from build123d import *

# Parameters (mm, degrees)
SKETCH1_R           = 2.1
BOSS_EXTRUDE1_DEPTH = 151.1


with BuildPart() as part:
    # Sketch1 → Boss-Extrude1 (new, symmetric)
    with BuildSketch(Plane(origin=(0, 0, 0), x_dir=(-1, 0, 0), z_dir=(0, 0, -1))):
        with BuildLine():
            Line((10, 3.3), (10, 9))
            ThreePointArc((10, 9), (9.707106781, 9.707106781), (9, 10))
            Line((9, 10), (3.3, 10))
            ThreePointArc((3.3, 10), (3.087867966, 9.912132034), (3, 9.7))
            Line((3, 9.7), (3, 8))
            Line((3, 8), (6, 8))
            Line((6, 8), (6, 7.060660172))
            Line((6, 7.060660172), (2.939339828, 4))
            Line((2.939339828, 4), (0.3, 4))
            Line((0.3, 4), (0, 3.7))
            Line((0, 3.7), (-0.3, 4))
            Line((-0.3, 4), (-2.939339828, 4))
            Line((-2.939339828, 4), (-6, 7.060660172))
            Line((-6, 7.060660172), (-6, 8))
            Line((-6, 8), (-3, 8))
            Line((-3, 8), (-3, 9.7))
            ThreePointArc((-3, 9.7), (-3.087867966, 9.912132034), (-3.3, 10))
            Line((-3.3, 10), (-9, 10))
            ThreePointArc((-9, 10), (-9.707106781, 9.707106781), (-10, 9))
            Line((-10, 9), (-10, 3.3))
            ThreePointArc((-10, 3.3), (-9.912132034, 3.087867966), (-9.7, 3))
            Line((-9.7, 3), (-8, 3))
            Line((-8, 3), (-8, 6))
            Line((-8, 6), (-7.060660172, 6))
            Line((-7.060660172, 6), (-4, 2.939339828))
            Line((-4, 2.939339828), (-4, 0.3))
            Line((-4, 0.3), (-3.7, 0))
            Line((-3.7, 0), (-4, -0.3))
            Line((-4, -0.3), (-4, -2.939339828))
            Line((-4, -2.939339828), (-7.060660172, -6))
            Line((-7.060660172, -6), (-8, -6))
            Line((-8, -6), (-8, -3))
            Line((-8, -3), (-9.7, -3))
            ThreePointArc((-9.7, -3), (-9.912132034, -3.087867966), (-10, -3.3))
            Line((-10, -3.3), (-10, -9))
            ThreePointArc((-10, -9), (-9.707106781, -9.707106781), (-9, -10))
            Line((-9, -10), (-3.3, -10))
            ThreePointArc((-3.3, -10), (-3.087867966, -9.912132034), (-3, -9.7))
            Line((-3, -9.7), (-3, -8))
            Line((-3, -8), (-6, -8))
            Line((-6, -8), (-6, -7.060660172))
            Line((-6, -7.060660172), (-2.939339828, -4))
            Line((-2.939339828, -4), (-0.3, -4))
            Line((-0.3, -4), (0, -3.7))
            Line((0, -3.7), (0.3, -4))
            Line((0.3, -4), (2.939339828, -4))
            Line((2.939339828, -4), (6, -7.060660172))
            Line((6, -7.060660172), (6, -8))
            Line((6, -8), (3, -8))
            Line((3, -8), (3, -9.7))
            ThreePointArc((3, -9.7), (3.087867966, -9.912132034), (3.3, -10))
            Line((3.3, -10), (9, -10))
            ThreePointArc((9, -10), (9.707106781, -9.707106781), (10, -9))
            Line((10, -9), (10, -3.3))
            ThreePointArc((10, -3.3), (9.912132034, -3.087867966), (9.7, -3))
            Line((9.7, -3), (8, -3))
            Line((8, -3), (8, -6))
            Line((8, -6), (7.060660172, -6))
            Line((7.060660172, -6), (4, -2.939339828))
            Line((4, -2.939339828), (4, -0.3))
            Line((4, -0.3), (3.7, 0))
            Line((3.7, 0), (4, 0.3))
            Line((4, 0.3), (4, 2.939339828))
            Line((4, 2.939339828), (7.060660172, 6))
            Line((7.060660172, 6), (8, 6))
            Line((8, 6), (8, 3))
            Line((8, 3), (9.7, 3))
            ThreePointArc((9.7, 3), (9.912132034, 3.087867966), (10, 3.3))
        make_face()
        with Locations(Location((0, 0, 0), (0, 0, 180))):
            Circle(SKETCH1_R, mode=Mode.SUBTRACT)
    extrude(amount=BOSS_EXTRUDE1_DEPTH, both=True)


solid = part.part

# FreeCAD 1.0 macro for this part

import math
import FreeCAD as App
import Part
import Sketcher
from FreeCAD import Vector
Q = App.Units.Quantity

doc = App.newDocument("Part")
body = doc.addObject("PartDesign::Body", "Body")

# Sketch on XY plane
sketch1 = body.newObject("Sketcher::SketchObject", "Sketch")
sketch1.AttachmentSupport = (doc.getObject("XY_Plane"), [""])
sketch1.MapMode = "FlatFace"
sketch1.addGeometry(Part.LineSegment(Vector(-10, 3.3, 0), Vector(-10, 9, 0)), False)
sketch1.addGeometry(Part.ArcOfCircle(Part.Circle(Vector(-9, 9, 0), Vector(0, 0, 1), 1), math.radians(90), math.radians(180)), False)
sketch1.addGeometry(Part.LineSegment(Vector(-9, 10, 0), Vector(-3.3, 10, 0)), False)
sketch1.addGeometry(Part.ArcOfCircle(Part.Circle(Vector(-3.3, 9.7, 0), Vector(0, 0, 1), 0.3), math.radians(0), math.radians(90)), False)
sketch1.addGeometry(Part.LineSegment(Vector(-3, 9.7, 0), Vector(-3, 8, 0)), False)
sketch1.addGeometry(Part.LineSegment(Vector(-3, 8, 0), Vector(-6, 8, 0)), False)
sketch1.addGeometry(Part.LineSegment(Vector(-6, 8, 0), Vector(-6, 7.06, 0)), False)
sketch1.addGeometry(Part.LineSegment(Vector(-6, 7.06, 0), Vector(-2.94, 4, 0)), False)
sketch1.addGeometry(Part.LineSegment(Vector(-2.94, 4, 0), Vector(-0.3, 4, 0)), False)
sketch1.addGeometry(Part.LineSegment(Vector(-0.3, 4, 0), Vector(0, 3.7, 0)), False)
sketch1.addGeometry(Part.LineSegment(Vector(0, 3.7, 0), Vector(0.3, 4, 0)), False)
sketch1.addGeometry(Part.LineSegment(Vector(0.3, 4, 0), Vector(2.94, 4, 0)), False)
sketch1.addGeometry(Part.LineSegment(Vector(2.94, 4, 0), Vector(6, 7.06, 0)), False)
sketch1.addGeometry(Part.LineSegment(Vector(6, 7.06, 0), Vector(6, 8, 0)), False)
sketch1.addGeometry(Part.LineSegment(Vector(6, 8, 0), Vector(3, 8, 0)), False)
sketch1.addGeometry(Part.LineSegment(Vector(3, 8, 0), Vector(3, 9.7, 0)), False)
sketch1.addGeometry(Part.ArcOfCircle(Part.Circle(Vector(3.3, 9.7, 0), Vector(0, 0, 1), 0.3), math.radians(90), math.radians(180)), False)
sketch1.addGeometry(Part.LineSegment(Vector(3.3, 10, 0), Vector(9, 10, 0)), False)
sketch1.addGeometry(Part.ArcOfCircle(Part.Circle(Vector(9, 9, 0), Vector(0, 0, 1), 1), math.radians(0), math.radians(90)), False)
sketch1.addGeometry(Part.LineSegment(Vector(10, 9, 0), Vector(10, 3.3, 0)), False)
sketch1.addGeometry(Part.ArcOfCircle(Part.Circle(Vector(9.7, 3.3, 0), Vector(0, 0, 1), 0.3), math.radians(-90), math.radians(0)), False)
sketch1.addGeometry(Part.LineSegment(Vector(9.7, 3, 0), Vector(8, 3, 0)), False)
sketch1.addGeometry(Part.LineSegment(Vector(8, 3, 0), Vector(8, 6, 0)), False)
sketch1.addGeometry(Part.LineSegment(Vector(8, 6, 0), Vector(7.06, 6, 0)), False)
sketch1.addGeometry(Part.LineSegment(Vector(7.06, 6, 0), Vector(4, 2.94, 0)), False)
sketch1.addGeometry(Part.LineSegment(Vector(4, 2.94, 0), Vector(4, 0.3, 0)), False)
sketch1.addGeometry(Part.LineSegment(Vector(4, 0.3, 0), Vector(3.7, 0, 0)), False)
sketch1.addGeometry(Part.LineSegment(Vector(3.7, 0, 0), Vector(4, -0.3, 0)), False)
sketch1.addGeometry(Part.LineSegment(Vector(4, -0.3, 0), Vector(4, -2.94, 0)), False)
sketch1.addGeometry(Part.LineSegment(Vector(4, -2.94, 0), Vector(7.06, -6, 0)), False)
sketch1.addGeometry(Part.LineSegment(Vector(7.06, -6, 0), Vector(8, -6, 0)), False)
sketch1.addGeometry(Part.LineSegment(Vector(8, -6, 0), Vector(8, -3, 0)), False)
sketch1.addGeometry(Part.LineSegment(Vector(8, -3, 0), Vector(9.7, -3, 0)), False)
sketch1.addGeometry(Part.ArcOfCircle(Part.Circle(Vector(9.7, -3.3, 0), Vector(0, 0, 1), 0.3), math.radians(0), math.radians(90)), False)
sketch1.addGeometry(Part.LineSegment(Vector(10, -3.3, 0), Vector(10, -9, 0)), False)
sketch1.addGeometry(Part.ArcOfCircle(Part.Circle(Vector(9, -9, 0), Vector(0, 0, 1), 1), math.radians(-90), math.radians(0)), False)
sketch1.addGeometry(Part.LineSegment(Vector(9, -10, 0), Vector(3.3, -10, 0)), False)
sketch1.addGeometry(Part.ArcOfCircle(Part.Circle(Vector(3.3, -9.7, 0), Vector(0, 0, 1), 0.3), math.radians(-180), math.radians(-90)), False)
sketch1.addGeometry(Part.LineSegment(Vector(3, -9.7, 0), Vector(3, -8, 0)), False)
sketch1.addGeometry(Part.LineSegment(Vector(3, -8, 0), Vector(6, -8, 0)), False)
sketch1.addGeometry(Part.LineSegment(Vector(6, -8, 0), Vector(6, -7.06, 0)), False)
sketch1.addGeometry(Part.LineSegment(Vector(6, -7.06, 0), Vector(2.94, -4, 0)), False)
sketch1.addGeometry(Part.LineSegment(Vector(2.94, -4, 0), Vector(0.3, -4, 0)), False)
sketch1.addGeometry(Part.LineSegment(Vector(0.3, -4, 0), Vector(0, -3.7, 0)), False)
sketch1.addGeometry(Part.LineSegment(Vector(0, -3.7, 0), Vector(-0.3, -4, 0)), False)
sketch1.addGeometry(Part.LineSegment(Vector(-0.3, -4, 0), Vector(-2.94, -4, 0)), False)
sketch1.addGeometry(Part.LineSegment(Vector(-2.94, -4, 0), Vector(-6, -7.06, 0)), False)
sketch1.addGeometry(Part.LineSegment(Vector(-6, -7.06, 0), Vector(-6, -8, 0)), False)
sketch1.addGeometry(Part.LineSegment(Vector(-6, -8, 0), Vector(-3, -8, 0)), False)
sketch1.addGeometry(Part.LineSegment(Vector(-3, -8, 0), Vector(-3, -9.7, 0)), False)
sketch1.addGeometry(Part.ArcOfCircle(Part.Circle(Vector(-3.3, -9.7, 0), Vector(0, 0, 1), 0.3), math.radians(-90), math.radians(0)), False)
sketch1.addGeometry(Part.LineSegment(Vector(-3.3, -10, 0), Vector(-9, -10, 0)), False)
sketch1.addGeometry(Part.ArcOfCircle(Part.Circle(Vector(-9, -9, 0), Vector(0, 0, 1), 1), math.radians(-180), math.radians(-90)), False)
sketch1.addGeometry(Part.LineSegment(Vector(-10, -9, 0), Vector(-10, -3.3, 0)), False)
sketch1.addGeometry(Part.ArcOfCircle(Part.Circle(Vector(-9.7, -3.3, 0), Vector(0, 0, 1), 0.3), math.radians(90), math.radians(180)), False)
sketch1.addGeometry(Part.LineSegment(Vector(-9.7, -3, 0), Vector(-8, -3, 0)), False)
sketch1.addGeometry(Part.LineSegment(Vector(-8, -3, 0), Vector(-8, -6, 0)), False)
sketch1.addGeometry(Part.LineSegment(Vector(-8, -6, 0), Vector(-7.06, -6, 0)), False)
sketch1.addGeometry(Part.LineSegment(Vector(-7.06, -6, 0), Vector(-4, -2.94, 0)), False)
sketch1.addGeometry(Part.LineSegment(Vector(-4, -2.94, 0), Vector(-4, -0.3, 0)), False)
sketch1.addGeometry(Part.LineSegment(Vector(-4, -0.3, 0), Vector(-3.7, 0, 0)), False)
sketch1.addGeometry(Part.LineSegment(Vector(-3.7, 0, 0), Vector(-4, 0.3, 0)), False)
sketch1.addGeometry(Part.LineSegment(Vector(-4, 0.3, 0), Vector(-4, 2.94, 0)), False)
sketch1.addGeometry(Part.LineSegment(Vector(-4, 2.94, 0), Vector(-7.06, 6, 0)), False)
sketch1.addGeometry(Part.LineSegment(Vector(-7.06, 6, 0), Vector(-8, 6, 0)), False)
sketch1.addGeometry(Part.LineSegment(Vector(-8, 6, 0), Vector(-8, 3, 0)), False)
sketch1.addGeometry(Part.LineSegment(Vector(-8, 3, 0), Vector(-9.7, 3, 0)), False)
sketch1.addGeometry(Part.ArcOfCircle(Part.Circle(Vector(-9.7, 3.3, 0), Vector(0, 0, 1), 0.3), math.radians(-180), math.radians(-90)), False)
sketch1.addGeometry(Part.Circle(Vector(0, 0, 0), Vector(0, 0, 1), 2.1), False)
sketch1.addConstraint(Sketcher.Constraint("Tangent", 0, 2, 1, 2))
sketch1.addConstraint(Sketcher.Constraint("Tangent", 1, 1, 2, 1))
sketch1.addConstraint(Sketcher.Constraint("Tangent", 2, 2, 3, 2))
sketch1.addConstraint(Sketcher.Constraint("Tangent", 3, 1, 4, 1))
sketch1.addConstraint(Sketcher.Constraint("Coincident", 4, 2, 5, 1))
sketch1.addConstraint(Sketcher.Constraint("Coincident", 5, 2, 6, 1))
sketch1.addConstraint(Sketcher.Constraint("Coincident", 6, 2, 7, 1))
sketch1.addConstraint(Sketcher.Constraint("Coincident", 7, 2, 8, 1))
sketch1.addConstraint(Sketcher.Constraint("Coincident", 8, 2, 9, 1))
sketch1.addConstraint(Sketcher.Constraint("Coincident", 9, 2, 10, 1))
sketch1.addConstraint(Sketcher.Constraint("Coincident", 10, 2, 11, 1))
sketch1.addConstraint(Sketcher.Constraint("Coincident", 11, 2, 12, 1))
sketch1.addConstraint(Sketcher.Constraint("Coincident", 12, 2, 13, 1))
sketch1.addConstraint(Sketcher.Constraint("Coincident", 13, 2, 14, 1))
sketch1.addConstraint(Sketcher.Constraint("Coincident", 14, 2, 15, 1))
sketch1.addConstraint(Sketcher.Constraint("Tangent", 15, 2, 16, 2))
sketch1.addConstraint(Sketcher.Constraint("Tangent", 16, 1, 17, 1))
sketch1.addConstraint(Sketcher.Constraint("Tangent", 17, 2, 18, 2))
sketch1.addConstraint(Sketcher.Constraint("Tangent", 18, 1, 19, 1))
sketch1.addConstraint(Sketcher.Constraint("Tangent", 19, 2, 20, 2))
sketch1.addConstraint(Sketcher.Constraint("Tangent", 20, 1, 21, 1))
sketch1.addConstraint(Sketcher.Constraint("Coincident", 21, 2, 22, 1))
sketch1.addConstraint(Sketcher.Constraint("Coincident", 22, 2, 23, 1))
sketch1.addConstraint(Sketcher.Constraint("Coincident", 23, 2, 24, 1))
sketch1.addConstraint(Sketcher.Constraint("Coincident", 24, 2, 25, 1))
sketch1.addConstraint(Sketcher.Constraint("Coincident", 25, 2, 26, 1))
sketch1.addConstraint(Sketcher.Constraint("Coincident", 26, 2, 27, 1))
sketch1.addConstraint(Sketcher.Constraint("Coincident", 27, 2, 28, 1))
sketch1.addConstraint(Sketcher.Constraint("Coincident", 28, 2, 29, 1))
sketch1.addConstraint(Sketcher.Constraint("Coincident", 29, 2, 30, 1))
sketch1.addConstraint(Sketcher.Constraint("Coincident", 30, 2, 31, 1))
sketch1.addConstraint(Sketcher.Constraint("Coincident", 31, 2, 32, 1))
sketch1.addConstraint(Sketcher.Constraint("Tangent", 32, 2, 33, 2))
sketch1.addConstraint(Sketcher.Constraint("Tangent", 33, 1, 34, 1))
sketch1.addConstraint(Sketcher.Constraint("Tangent", 34, 2, 35, 2))
sketch1.addConstraint(Sketcher.Constraint("Tangent", 35, 1, 36, 1))
sketch1.addConstraint(Sketcher.Constraint("Tangent", 36, 2, 37, 2))
sketch1.addConstraint(Sketcher.Constraint("Tangent", 37, 1, 38, 1))
sketch1.addConstraint(Sketcher.Constraint("Coincident", 38, 2, 39, 1))
sketch1.addConstraint(Sketcher.Constraint("Coincident", 39, 2, 40, 1))
sketch1.addConstraint(Sketcher.Constraint("Coincident", 40, 2, 41, 1))
sketch1.addConstraint(Sketcher.Constraint("Coincident", 41, 2, 42, 1))
sketch1.addConstraint(Sketcher.Constraint("Coincident", 42, 2, 43, 1))
sketch1.addConstraint(Sketcher.Constraint("Coincident", 43, 2, 44, 1))
sketch1.addConstraint(Sketcher.Constraint("Coincident", 44, 2, 45, 1))
sketch1.addConstraint(Sketcher.Constraint("Coincident", 45, 2, 46, 1))
sketch1.addConstraint(Sketcher.Constraint("Coincident", 46, 2, 47, 1))
sketch1.addConstraint(Sketcher.Constraint("Coincident", 47, 2, 48, 1))
sketch1.addConstraint(Sketcher.Constraint("Coincident", 48, 2, 49, 1))
sketch1.addConstraint(Sketcher.Constraint("Tangent", 49, 2, 50, 2))
sketch1.addConstraint(Sketcher.Constraint("Tangent", 50, 1, 51, 1))
sketch1.addConstraint(Sketcher.Constraint("Tangent", 51, 2, 52, 2))
sketch1.addConstraint(Sketcher.Constraint("Tangent", 52, 1, 53, 1))
sketch1.addConstraint(Sketcher.Constraint("Tangent", 53, 2, 54, 2))
sketch1.addConstraint(Sketcher.Constraint("Tangent", 54, 1, 55, 1))
sketch1.addConstraint(Sketcher.Constraint("Coincident", 55, 2, 56, 1))
sketch1.addConstraint(Sketcher.Constraint("Coincident", 56, 2, 57, 1))
sketch1.addConstraint(Sketcher.Constraint("Coincident", 57, 2, 58, 1))
sketch1.addConstraint(Sketcher.Constraint("Coincident", 58, 2, 59, 1))
sketch1.addConstraint(Sketcher.Constraint("Coincident", 59, 2, 60, 1))
sketch1.addConstraint(Sketcher.Constraint("Coincident", 60, 2, 61, 1))
sketch1.addConstraint(Sketcher.Constraint("Coincident", 61, 2, 62, 1))
sketch1.addConstraint(Sketcher.Constraint("Coincident", 62, 2, 63, 1))
sketch1.addConstraint(Sketcher.Constraint("Coincident", 63, 2, 64, 1))
sketch1.addConstraint(Sketcher.Constraint("Coincident", 64, 2, 65, 1))
sketch1.addConstraint(Sketcher.Constraint("Coincident", 65, 2, 66, 1))
sketch1.addConstraint(Sketcher.Constraint("Tangent", 66, 2, 67, 2))
sketch1.addConstraint(Sketcher.Constraint("Tangent", 67, 1, 0, 1))
sketch1.addConstraint(Sketcher.Constraint("Vertical", 0))
sketch1.addConstraint(Sketcher.Constraint("Horizontal", 2))
sketch1.addConstraint(Sketcher.Constraint("Vertical", 4))
sketch1.addConstraint(Sketcher.Constraint("Horizontal", 5))
sketch1.addConstraint(Sketcher.Constraint("Vertical", 6))
sketch1.addConstraint(Sketcher.Constraint("Horizontal", 8))
sketch1.addConstraint(Sketcher.Constraint("Horizontal", 11))
sketch1.addConstraint(Sketcher.Constraint("Vertical", 13))
sketch1.addConstraint(Sketcher.Constraint("Horizontal", 14))
sketch1.addConstraint(Sketcher.Constraint("Vertical", 15))
sketch1.addConstraint(Sketcher.Constraint("Horizontal", 17))
sketch1.addConstraint(Sketcher.Constraint("Vertical", 19))
sketch1.addConstraint(Sketcher.Constraint("Horizontal", 21))
sketch1.addConstraint(Sketcher.Constraint("Vertical", 22))
sketch1.addConstraint(Sketcher.Constraint("Horizontal", 23))
sketch1.addConstraint(Sketcher.Constraint("Vertical", 25))
sketch1.addConstraint(Sketcher.Constraint("Vertical", 28))
sketch1.addConstraint(Sketcher.Constraint("Horizontal", 30))
sketch1.addConstraint(Sketcher.Constraint("Vertical", 31))
sketch1.addConstraint(Sketcher.Constraint("Horizontal", 32))
sketch1.addConstraint(Sketcher.Constraint("Vertical", 34))
sketch1.addConstraint(Sketcher.Constraint("Horizontal", 36))
sketch1.addConstraint(Sketcher.Constraint("Vertical", 38))
sketch1.addConstraint(Sketcher.Constraint("Horizontal", 39))
sketch1.addConstraint(Sketcher.Constraint("Vertical", 40))
sketch1.addConstraint(Sketcher.Constraint("Horizontal", 42))
sketch1.addConstraint(Sketcher.Constraint("Horizontal", 45))
sketch1.addConstraint(Sketcher.Constraint("Vertical", 47))
sketch1.addConstraint(Sketcher.Constraint("Horizontal", 48))
sketch1.addConstraint(Sketcher.Constraint("Vertical", 49))
sketch1.addConstraint(Sketcher.Constraint("Horizontal", 51))
sketch1.addConstraint(Sketcher.Constraint("Vertical", 53))
sketch1.addConstraint(Sketcher.Constraint("Horizontal", 55))
sketch1.addConstraint(Sketcher.Constraint("Vertical", 56))
sketch1.addConstraint(Sketcher.Constraint("Horizontal", 57))
sketch1.addConstraint(Sketcher.Constraint("Vertical", 59))
sketch1.addConstraint(Sketcher.Constraint("Vertical", 62))
sketch1.addConstraint(Sketcher.Constraint("Horizontal", 64))
sketch1.addConstraint(Sketcher.Constraint("Vertical", 65))
sketch1.addConstraint(Sketcher.Constraint("Horizontal", 66))
sketch1.addConstraint(Sketcher.Constraint("Coincident", 68, 3, -1, 1))
sketch1.addConstraint(Sketcher.Constraint("Equal", 3, 16))
sketch1.addConstraint(Sketcher.Constraint("Equal", 1, 18))
sketch1.addConstraint(Sketcher.Constraint("Equal", 16, 20))
sketch1.addConstraint(Sketcher.Constraint("Equal", 20, 33))
sketch1.addConstraint(Sketcher.Constraint("Equal", 18, 35))
sketch1.addConstraint(Sketcher.Constraint("Equal", 33, 37))
sketch1.addConstraint(Sketcher.Constraint("Equal", 37, 50))
sketch1.addConstraint(Sketcher.Constraint("Equal", 35, 52))
sketch1.addConstraint(Sketcher.Constraint("Equal", 50, 54))
sketch1.addConstraint(Sketcher.Constraint("Equal", 54, 67))
sketch1.addConstraint(Sketcher.Constraint("Symmetric", 1, 3, 35, 3, -1, 1))
sketch1.addConstraint(Sketcher.Constraint("Symmetric", 16, 3, 50, 3, -1, 1))
sketch1.addConstraint(Sketcher.Constraint("Symmetric", 20, 3, 54, 3, -1, 1))
sketch1.addConstraint(Sketcher.Constraint("Symmetric", 4, 2, 38, 2, -1, 1))
sketch1.addConstraint(Sketcher.Constraint("Symmetric", 6, 2, 40, 2, -1, 1))
sketch1.addConstraint(Sketcher.Constraint("Symmetric", 7, 2, 41, 2, -1, 1))
sketch1.addConstraint(Sketcher.Constraint("Symmetric", 9, 2, 43, 2, -1, 1))
sketch1.addConstraint(Sketcher.Constraint("Symmetric", 10, 2, 44, 2, -1, 1))
sketch1.addConstraint(Sketcher.Constraint("Symmetric", 12, 2, 46, 2, -1, 1))
sketch1.addConstraint(Sketcher.Constraint("Symmetric", 22, 2, 56, 2, -1, 1))
sketch1.addConstraint(Sketcher.Constraint("Symmetric", 24, 2, 58, 2, -1, 1))
sketch1.addConstraint(Sketcher.Constraint("Symmetric", 26, 2, 60, 2, -1, 1))
sketch1.addConstraint(Sketcher.Constraint("Symmetric", 27, 2, 61, 2, -1, 1))
sketch1.addConstraint(Sketcher.Constraint("Symmetric", 29, 2, 63, 2, -1, 1))
sketch1.addConstraint(Sketcher.Constraint("Symmetric", 31, 2, 65, 2, -1, 1))
sketch1.addConstraint(Sketcher.Constraint("Symmetric", 3, 3, 16, 3, -2))
sketch1.addConstraint(Sketcher.Constraint("Symmetric", 33, 3, 54, 3, -2))
sketch1.addConstraint(Sketcher.Constraint("Symmetric", 8, 2, 10, 2, -2))
sketch1.addConstraint(Sketcher.Constraint("Symmetric", 6, 2, 12, 2, -2))
sketch1.addConstraint(Sketcher.Constraint("Symmetric", 30, 2, 56, 2, -2))
sketch1.addConstraint(Sketcher.Constraint("Symmetric", 28, 2, 58, 2, -2))
sketch1.addConstraint(Sketcher.Constraint("PointOnObject", 9, 2, -2))
sketch1.addConstraint(Sketcher.Constraint("PointOnObject", 26, 2, -1))
sketch1.addConstraint(Sketcher.Constraint("Parallel", 7, 9))
sketch1.addConstraint(Sketcher.Constraint("Perpendicular", 9, 10))
sketch1.addConstraint(Sketcher.Constraint("Parallel", 10, 12))
sketch1.addConstraint(Sketcher.Constraint("Parallel", 12, 24))
sketch1.addConstraint(Sketcher.Constraint("Parallel", 24, 26))
sketch1.addConstraint(Sketcher.Constraint("Perpendicular", 26, 27))
sketch1.addConstraint(Sketcher.Constraint("Parallel", 27, 29))
sketch1.addConstraint(Sketcher.Constraint("Parallel", 41, 43))
sketch1.addConstraint(Sketcher.Constraint("Parallel", 44, 46))
sketch1.addConstraint(Sketcher.Constraint("Parallel", 46, 58))
sketch1.addConstraint(Sketcher.Constraint("Parallel", 58, 60))
sketch1.addConstraint(Sketcher.Constraint("Parallel", 61, 63))
sketch1.addConstraint(Sketcher.Constraint("Horizontal", 5, 2, 13, 2))
sketch1.addConstraint(Sketcher.Constraint("Horizontal", 39, 2, 47, 2))
sketch1.addConstraint(Sketcher.Constraint("Equal", 51, 0))
sketch1.addConstraint(Sketcher.Constraint("Equal", 66, 4))
sketch1.addConstraint(Sketcher.Constraint("Equal", 64, 6))
sketch1.addConstraint(Sketcher.Constraint("Equal", 48, 22))
sketch1.addConstraint(Sketcher.Constraint("Equal", 45, 25))
sketch1.addConstraint(Sketcher.Constraint("Equal", 12, 24))
sketch1.addConstraint(Sketcher.Constraint("Equal", 10, 26))
sketch1.addConstraint(Sketcher.Constraint("Radius", 1, Q("1 mm")))
sketch1.addConstraint(Sketcher.Constraint("Diameter", 68, Q("4.2 mm")))
sketch1.addConstraint(Sketcher.Constraint("Radius", 3, Q("0.3 mm")))
sketch1.addConstraint(Sketcher.Constraint("DistanceX", 5, 2, 5, 1, Q("3 mm")))
sketch1.addConstraint(Sketcher.Constraint("DistanceX", 2, 1, 2, 2, Q("5.7 mm")))
sketch1.addConstraint(Sketcher.Constraint("DistanceX", 21, 2, 21, 1, Q("1.7 mm")))
sketch1.addConstraint(Sketcher.Constraint("DistanceX", 1, 3, -1, 1, Q("9 mm")))
sketch1.addConstraint(Sketcher.Constraint("DistanceY", -1, 1, 7, 2, Q("4 mm")))
sketch1.addConstraint(Sketcher.Constraint("DistanceX", 8, 2, -1, 1, Q("0.3 mm")))
sketch1.addConstraint(Sketcher.Constraint("DistanceX", 8, 1, 8, 2, Q("2.63934 mm")))
pad1 = body.newObject("PartDesign::Pad", "Pad")
pad1.Profile = sketch1
pad1.Length = 302.2
pad1.Midplane = True

doc.recompute()
